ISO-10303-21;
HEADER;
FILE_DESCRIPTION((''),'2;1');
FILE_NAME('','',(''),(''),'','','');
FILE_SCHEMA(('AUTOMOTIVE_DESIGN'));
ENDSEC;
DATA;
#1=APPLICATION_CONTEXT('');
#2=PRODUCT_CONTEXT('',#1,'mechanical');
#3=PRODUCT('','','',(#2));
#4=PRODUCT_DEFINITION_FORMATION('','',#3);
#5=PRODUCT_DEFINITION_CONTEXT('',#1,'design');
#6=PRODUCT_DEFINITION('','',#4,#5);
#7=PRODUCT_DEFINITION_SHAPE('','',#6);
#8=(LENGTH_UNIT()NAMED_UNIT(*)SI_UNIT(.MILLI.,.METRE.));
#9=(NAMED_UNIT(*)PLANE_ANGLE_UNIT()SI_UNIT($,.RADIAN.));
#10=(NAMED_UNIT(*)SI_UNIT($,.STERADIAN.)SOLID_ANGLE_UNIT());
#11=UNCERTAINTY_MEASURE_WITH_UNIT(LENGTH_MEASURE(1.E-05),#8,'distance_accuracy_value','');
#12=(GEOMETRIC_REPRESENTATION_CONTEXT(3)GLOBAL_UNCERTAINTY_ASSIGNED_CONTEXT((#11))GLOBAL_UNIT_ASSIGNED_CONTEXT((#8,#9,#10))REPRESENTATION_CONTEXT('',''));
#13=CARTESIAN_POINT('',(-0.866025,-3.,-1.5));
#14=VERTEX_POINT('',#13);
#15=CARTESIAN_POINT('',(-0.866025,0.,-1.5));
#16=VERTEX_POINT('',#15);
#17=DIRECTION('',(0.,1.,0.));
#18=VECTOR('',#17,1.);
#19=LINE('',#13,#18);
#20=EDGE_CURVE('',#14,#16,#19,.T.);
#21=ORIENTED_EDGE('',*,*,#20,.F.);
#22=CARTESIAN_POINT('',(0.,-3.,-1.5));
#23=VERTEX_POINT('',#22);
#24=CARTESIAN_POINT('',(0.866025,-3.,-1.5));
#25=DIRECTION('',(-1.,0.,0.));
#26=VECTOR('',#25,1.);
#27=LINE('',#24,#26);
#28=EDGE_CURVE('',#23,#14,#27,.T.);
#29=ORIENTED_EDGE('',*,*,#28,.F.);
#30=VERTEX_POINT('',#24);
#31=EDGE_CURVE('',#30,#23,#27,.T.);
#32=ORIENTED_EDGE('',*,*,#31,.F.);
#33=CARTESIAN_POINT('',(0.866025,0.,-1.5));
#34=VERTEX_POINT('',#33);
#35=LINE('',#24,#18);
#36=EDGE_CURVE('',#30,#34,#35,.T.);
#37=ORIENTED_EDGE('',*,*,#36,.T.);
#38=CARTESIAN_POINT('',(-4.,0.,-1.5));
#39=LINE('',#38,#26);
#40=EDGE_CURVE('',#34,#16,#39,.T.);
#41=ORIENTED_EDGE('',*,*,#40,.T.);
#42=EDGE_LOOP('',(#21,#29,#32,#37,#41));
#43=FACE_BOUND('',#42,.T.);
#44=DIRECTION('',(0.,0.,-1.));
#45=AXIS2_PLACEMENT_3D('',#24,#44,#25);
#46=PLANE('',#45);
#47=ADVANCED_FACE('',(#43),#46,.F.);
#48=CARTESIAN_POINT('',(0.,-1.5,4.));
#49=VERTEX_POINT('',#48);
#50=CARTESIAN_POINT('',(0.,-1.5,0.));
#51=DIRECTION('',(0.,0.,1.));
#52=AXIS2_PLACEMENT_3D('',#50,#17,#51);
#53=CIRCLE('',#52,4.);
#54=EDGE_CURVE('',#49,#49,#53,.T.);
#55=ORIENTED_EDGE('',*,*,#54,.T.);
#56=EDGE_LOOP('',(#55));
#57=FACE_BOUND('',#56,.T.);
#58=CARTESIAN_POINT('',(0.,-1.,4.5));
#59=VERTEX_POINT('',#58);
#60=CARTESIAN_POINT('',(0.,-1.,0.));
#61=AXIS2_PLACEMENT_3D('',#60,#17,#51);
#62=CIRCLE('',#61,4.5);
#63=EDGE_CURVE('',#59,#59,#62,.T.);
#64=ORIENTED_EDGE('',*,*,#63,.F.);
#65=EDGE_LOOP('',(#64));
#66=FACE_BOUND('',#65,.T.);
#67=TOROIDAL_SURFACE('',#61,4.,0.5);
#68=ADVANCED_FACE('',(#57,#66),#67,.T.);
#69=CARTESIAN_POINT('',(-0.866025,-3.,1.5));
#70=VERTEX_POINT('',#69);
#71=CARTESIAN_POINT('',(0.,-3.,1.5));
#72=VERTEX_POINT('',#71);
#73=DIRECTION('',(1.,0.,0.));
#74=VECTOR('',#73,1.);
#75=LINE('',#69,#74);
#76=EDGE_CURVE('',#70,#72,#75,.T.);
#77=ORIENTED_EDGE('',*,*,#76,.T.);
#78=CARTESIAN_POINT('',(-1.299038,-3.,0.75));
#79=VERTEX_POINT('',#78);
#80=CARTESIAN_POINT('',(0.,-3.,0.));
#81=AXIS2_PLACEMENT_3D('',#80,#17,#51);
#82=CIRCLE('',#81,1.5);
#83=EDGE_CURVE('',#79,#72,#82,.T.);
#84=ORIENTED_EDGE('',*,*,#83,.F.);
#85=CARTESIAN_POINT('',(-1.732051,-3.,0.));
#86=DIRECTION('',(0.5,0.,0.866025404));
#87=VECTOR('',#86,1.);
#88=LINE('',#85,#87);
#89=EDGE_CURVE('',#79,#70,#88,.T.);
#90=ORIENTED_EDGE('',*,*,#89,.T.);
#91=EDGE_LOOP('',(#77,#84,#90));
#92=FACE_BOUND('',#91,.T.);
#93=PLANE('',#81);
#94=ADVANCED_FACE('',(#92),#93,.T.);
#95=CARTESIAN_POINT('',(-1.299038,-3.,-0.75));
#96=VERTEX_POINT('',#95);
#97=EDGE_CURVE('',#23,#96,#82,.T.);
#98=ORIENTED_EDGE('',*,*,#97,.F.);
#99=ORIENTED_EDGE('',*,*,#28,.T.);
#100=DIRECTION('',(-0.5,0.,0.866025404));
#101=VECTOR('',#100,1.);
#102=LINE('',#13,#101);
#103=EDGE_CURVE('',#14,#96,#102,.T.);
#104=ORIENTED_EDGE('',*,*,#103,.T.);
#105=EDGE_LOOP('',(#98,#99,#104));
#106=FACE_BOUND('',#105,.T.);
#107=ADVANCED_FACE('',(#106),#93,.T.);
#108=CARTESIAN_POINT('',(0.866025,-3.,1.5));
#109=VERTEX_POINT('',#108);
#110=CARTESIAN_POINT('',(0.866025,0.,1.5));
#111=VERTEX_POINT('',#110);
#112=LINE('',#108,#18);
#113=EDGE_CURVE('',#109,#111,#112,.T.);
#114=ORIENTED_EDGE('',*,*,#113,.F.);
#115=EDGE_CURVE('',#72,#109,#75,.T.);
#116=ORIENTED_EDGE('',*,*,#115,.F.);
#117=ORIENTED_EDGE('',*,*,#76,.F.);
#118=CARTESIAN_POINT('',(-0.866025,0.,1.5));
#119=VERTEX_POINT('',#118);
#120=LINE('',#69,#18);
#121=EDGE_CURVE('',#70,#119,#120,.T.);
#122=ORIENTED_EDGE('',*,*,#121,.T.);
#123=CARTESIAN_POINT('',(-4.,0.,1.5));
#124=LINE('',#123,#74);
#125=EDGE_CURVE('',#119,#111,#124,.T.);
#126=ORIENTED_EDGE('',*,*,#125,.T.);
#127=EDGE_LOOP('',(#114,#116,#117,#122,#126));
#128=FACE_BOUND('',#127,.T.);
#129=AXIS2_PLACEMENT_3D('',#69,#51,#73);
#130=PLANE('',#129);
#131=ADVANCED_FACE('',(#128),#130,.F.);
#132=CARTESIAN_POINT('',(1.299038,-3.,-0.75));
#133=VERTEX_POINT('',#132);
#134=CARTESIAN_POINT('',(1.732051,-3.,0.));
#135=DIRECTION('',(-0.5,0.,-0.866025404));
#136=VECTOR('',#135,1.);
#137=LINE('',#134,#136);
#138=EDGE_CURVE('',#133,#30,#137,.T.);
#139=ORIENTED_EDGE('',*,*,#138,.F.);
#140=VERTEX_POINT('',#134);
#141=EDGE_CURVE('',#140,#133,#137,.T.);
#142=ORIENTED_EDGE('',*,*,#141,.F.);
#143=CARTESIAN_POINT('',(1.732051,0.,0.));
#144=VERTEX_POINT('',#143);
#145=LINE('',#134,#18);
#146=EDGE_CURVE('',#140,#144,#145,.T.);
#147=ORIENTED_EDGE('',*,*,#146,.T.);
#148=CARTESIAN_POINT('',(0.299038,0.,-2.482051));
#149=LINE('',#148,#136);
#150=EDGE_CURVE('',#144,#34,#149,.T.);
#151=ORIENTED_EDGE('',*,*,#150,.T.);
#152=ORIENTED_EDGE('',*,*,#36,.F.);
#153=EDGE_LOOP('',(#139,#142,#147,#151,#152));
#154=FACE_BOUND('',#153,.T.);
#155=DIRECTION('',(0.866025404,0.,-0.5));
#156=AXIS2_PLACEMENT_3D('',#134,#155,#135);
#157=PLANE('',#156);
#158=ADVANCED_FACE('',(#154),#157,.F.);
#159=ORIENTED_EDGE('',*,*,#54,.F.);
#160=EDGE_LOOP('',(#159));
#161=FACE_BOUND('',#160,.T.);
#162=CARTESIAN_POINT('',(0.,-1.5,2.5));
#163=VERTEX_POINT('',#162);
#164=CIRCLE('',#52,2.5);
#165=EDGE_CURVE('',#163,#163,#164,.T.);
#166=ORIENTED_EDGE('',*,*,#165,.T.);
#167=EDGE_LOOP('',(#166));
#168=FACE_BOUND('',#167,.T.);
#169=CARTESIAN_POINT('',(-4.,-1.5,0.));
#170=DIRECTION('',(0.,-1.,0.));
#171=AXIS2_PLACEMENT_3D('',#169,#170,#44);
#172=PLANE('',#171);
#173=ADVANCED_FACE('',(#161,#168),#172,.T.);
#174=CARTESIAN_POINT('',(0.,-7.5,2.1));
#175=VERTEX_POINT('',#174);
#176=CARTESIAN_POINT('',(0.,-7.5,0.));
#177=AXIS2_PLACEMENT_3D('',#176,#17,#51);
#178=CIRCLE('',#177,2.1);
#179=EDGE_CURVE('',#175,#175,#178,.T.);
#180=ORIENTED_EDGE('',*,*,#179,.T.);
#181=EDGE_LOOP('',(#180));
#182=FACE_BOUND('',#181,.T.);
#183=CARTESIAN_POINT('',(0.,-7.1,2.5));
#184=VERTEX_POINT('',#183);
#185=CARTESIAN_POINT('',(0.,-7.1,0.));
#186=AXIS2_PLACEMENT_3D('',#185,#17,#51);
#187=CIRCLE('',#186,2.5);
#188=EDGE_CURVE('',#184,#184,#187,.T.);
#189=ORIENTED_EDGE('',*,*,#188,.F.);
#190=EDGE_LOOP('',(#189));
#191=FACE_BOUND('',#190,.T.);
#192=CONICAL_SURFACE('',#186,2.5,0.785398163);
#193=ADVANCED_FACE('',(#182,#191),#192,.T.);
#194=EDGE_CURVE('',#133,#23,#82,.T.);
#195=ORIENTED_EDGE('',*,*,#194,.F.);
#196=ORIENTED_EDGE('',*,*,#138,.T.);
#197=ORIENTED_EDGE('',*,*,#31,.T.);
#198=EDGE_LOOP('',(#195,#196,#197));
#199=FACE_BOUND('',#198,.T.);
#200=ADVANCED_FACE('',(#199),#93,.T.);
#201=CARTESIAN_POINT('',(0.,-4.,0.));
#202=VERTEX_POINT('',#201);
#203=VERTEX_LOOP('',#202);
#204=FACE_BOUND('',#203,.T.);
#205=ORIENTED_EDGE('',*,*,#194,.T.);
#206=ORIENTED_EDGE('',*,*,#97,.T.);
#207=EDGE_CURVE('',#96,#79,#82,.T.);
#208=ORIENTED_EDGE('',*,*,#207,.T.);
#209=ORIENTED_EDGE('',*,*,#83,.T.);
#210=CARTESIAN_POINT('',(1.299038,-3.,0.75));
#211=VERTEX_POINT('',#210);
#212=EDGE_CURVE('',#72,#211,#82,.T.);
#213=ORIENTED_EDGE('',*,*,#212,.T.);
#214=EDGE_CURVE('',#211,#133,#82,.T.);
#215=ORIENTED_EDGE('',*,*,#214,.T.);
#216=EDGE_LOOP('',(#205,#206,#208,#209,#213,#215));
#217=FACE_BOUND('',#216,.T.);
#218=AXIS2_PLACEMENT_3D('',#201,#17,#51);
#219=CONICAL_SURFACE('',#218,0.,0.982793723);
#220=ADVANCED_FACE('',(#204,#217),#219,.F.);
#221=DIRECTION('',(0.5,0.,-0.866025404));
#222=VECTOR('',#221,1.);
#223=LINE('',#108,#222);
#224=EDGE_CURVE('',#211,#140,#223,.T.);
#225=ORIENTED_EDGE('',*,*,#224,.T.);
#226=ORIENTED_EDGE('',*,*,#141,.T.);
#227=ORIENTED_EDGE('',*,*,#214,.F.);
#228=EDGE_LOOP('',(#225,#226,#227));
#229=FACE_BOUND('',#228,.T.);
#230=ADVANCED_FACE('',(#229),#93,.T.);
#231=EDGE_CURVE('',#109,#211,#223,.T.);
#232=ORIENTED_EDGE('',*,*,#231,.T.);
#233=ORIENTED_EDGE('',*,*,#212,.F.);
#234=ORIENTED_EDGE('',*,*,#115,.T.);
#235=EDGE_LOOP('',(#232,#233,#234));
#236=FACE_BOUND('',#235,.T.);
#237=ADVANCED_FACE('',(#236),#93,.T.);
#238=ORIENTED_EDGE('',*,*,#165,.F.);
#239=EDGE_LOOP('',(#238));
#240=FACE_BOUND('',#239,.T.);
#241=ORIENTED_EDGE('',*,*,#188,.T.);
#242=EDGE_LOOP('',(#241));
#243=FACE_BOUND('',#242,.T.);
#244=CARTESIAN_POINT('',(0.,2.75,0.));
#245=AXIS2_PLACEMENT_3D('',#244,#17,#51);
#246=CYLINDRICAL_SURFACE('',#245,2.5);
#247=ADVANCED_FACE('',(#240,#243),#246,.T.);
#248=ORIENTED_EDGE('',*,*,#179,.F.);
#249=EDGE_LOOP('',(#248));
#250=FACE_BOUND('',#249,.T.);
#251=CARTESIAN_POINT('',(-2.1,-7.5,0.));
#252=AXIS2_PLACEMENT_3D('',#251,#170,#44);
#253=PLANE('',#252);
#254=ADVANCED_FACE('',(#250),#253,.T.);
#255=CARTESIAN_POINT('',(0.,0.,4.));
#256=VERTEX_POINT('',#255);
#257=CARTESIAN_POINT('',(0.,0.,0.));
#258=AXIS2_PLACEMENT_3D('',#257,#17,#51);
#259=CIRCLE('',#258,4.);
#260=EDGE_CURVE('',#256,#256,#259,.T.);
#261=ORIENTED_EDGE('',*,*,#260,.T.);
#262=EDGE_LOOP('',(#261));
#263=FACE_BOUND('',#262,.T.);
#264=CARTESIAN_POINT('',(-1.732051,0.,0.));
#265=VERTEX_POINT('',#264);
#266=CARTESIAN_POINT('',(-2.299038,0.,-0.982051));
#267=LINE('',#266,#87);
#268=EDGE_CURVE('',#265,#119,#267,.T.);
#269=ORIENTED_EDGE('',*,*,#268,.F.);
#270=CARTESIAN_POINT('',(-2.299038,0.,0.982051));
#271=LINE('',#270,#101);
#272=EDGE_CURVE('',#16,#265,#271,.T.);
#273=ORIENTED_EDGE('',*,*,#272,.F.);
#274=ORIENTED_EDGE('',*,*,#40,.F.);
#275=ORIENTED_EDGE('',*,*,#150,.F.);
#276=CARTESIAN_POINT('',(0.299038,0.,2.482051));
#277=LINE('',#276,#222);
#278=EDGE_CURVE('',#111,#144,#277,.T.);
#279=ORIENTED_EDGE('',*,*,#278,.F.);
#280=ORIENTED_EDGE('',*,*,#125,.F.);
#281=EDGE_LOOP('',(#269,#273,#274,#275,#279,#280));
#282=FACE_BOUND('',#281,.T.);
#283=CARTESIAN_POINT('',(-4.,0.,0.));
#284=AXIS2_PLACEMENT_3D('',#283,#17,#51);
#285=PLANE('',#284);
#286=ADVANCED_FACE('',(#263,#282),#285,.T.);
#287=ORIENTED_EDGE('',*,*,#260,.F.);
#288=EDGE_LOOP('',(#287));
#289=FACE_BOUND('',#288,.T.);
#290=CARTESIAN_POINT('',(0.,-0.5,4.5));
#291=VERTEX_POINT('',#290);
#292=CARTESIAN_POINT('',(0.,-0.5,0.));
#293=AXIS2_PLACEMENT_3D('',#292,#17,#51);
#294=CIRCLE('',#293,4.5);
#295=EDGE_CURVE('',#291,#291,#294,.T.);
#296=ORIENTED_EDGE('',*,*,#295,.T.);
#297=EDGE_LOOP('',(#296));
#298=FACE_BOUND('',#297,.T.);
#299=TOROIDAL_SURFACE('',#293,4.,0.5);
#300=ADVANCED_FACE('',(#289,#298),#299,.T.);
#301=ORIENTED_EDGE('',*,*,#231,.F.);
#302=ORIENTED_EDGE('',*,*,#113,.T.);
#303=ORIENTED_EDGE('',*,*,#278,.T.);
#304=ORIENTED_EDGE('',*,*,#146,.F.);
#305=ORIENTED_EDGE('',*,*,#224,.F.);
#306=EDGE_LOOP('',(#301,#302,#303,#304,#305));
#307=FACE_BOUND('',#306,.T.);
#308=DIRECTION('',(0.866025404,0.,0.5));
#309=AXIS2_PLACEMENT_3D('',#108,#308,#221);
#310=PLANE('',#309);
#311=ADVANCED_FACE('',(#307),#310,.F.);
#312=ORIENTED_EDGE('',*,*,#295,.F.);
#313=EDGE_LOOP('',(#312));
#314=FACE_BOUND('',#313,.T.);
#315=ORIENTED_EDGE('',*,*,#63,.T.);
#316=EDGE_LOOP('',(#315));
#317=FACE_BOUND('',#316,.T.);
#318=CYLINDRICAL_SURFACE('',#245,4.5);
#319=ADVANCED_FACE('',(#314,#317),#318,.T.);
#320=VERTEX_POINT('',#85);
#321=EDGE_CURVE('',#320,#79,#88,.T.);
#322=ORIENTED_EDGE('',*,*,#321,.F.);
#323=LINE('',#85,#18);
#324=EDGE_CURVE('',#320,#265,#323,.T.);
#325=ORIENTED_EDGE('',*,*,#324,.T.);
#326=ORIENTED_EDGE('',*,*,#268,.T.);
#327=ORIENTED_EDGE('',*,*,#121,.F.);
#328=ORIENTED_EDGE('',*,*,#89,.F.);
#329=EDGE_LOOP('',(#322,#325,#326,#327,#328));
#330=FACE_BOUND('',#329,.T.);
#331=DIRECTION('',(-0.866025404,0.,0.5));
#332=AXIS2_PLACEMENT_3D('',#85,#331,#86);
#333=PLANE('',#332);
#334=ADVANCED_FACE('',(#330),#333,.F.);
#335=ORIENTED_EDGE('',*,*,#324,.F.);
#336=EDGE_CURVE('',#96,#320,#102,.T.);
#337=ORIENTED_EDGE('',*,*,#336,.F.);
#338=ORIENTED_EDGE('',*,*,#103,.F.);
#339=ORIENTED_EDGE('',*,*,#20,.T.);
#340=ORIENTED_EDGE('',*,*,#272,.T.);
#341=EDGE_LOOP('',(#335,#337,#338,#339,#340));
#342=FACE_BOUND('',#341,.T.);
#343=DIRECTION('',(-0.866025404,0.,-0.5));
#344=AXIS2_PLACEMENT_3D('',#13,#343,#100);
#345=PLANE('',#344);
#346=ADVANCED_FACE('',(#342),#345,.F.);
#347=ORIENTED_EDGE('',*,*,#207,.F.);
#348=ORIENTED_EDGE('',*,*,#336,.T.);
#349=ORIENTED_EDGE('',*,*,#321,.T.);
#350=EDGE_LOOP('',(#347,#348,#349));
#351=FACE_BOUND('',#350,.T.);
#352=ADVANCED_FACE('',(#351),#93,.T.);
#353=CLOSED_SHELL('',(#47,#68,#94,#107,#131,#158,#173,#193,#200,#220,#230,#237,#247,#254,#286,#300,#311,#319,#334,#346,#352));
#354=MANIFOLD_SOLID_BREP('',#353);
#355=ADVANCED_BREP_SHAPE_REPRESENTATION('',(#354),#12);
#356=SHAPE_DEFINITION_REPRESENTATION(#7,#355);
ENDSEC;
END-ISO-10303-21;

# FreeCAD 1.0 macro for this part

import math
import FreeCAD as App
import Part
import Sketcher
Q = App.Units.Quantity


def add_polygon(sketch, points):
    """Adds a closed chain of lines whose ends are joined by coincident constraints."""
    first, n = sketch.GeometryCount, len(points)
    for a, b in zip(points, points[1:] + points[:1]):
        sketch.addGeometry(Part.LineSegment(App.Vector(*a, 0), App.Vector(*b, 0)), False)
    for i in range(n):
        sketch.addConstraint(Sketcher.Constraint("Coincident", first + i, 2, first + (i + 1) % n, 1))

doc = App.newDocument("Part")
body = doc.addObject("PartDesign::Body", "Body")

# Sketch on XY plane
sketch1 = body.newObject("Sketcher::SketchObject", "Sketch")
sketch1.AttachmentSupport = (doc.getObject("XY_Plane"), [""])
sketch1.MapMode = "FlatFace"
sketch1.addGeometry([
    Part.LineSegment(App.Vector(-4.5, -0.5, 0), App.Vector(-4.5, -1, 0)),  # 0
    Part.ArcOfCircle(Part.Circle(App.Vector(-4, -1, 0), App.Vector(0, 0, 1), 0.5), math.radians(180), math.radians(270)),  # 1
    Part.LineSegment(App.Vector(-4, -1.5, 0), App.Vector(-2.5, -1.5, 0)),  # 2
    Part.LineSegment(App.Vector(-2.5, -1.5, 0), App.Vector(-2.5, -7.1, 0)),  # 3
    Part.LineSegment(App.Vector(-2.5, -7.1, 0), App.Vector(-2.1, -7.5, 0)),  # 4
    Part.LineSegment(App.Vector(-2.1, -7.5, 0), App.Vector(0, -7.5, 0)),  # 5
    Part.LineSegment(App.Vector(0, -7.5, 0), App.Vector(0, -4, 0)),  # 6
    Part.LineSegment(App.Vector(0, -4, 0), App.Vector(-1.5, -3, 0)),  # 7
    Part.LineSegment(App.Vector(-1.5, -3, 0), App.Vector(-1.5, 0, 0)),  # 8
    Part.LineSegment(App.Vector(-1.5, 0, 0), App.Vector(-4, 0, 0)),  # 9
    Part.ArcOfCircle(Part.Circle(App.Vector(-4, -0.5, 0), App.Vector(0, 0, 1), 0.5), math.radians(90), math.radians(180)),  # 10
], False)
sketch1.addConstraint([
    Sketcher.Constraint("Tangent", 0, 2, 1, 1),
    Sketcher.Constraint("Tangent", 1, 2, 2, 1),
    Sketcher.Constraint("Coincident", 2, 2, 3, 1),
    Sketcher.Constraint("Coincident", 3, 2, 4, 1),
    Sketcher.Constraint("Coincident", 4, 2, 5, 1),
    Sketcher.Constraint("Coincident", 5, 2, 6, 1),
    Sketcher.Constraint("Coincident", 6, 2, 7, 1),
    Sketcher.Constraint("Coincident", 7, 2, 8, 1),
    Sketcher.Constraint("Coincident", 8, 2, 9, 1),
    Sketcher.Constraint("Tangent", 9, 2, 10, 1),
    Sketcher.Constraint("Tangent", 10, 2, 0, 1),
    Sketcher.Constraint("Vertical", 0),
    Sketcher.Constraint("Horizontal", 2),
    Sketcher.Constraint("Vertical", 3),
    Sketcher.Constraint("Horizontal", 5),
    Sketcher.Constraint("Vertical", 6),
    Sketcher.Constraint("Vertical", 8),
    Sketcher.Constraint("Horizontal", 9),
    Sketcher.Constraint("Equal", 1, 10),
    Sketcher.Constraint("PointOnObject", 5, 2, -2),
    Sketcher.Constraint("PointOnObject", 8, 2, -1),
    Sketcher.Constraint("Radius", 1, Q("0.5 mm")),
    Sketcher.Constraint("DistanceY", 8, 1, 8, 2, Q("3 mm")),
    Sketcher.Constraint("Angle", 4, Q("-45 deg")),
    Sketcher.Constraint("DistanceX", 2, 1, 2, 2, Q("1.5 mm")),
    Sketcher.Constraint("DistanceX", 5, 1, 5, 2, Q("2.1 mm")),
    Sketcher.Constraint("DistanceX", 9, 2, 9, 1, Q("2.5 mm")),
    Sketcher.Constraint("DistanceY", 0, 2, 0, 1, Q("0.5 mm")),
    Sketcher.Constraint("DistanceY", 3, 2, 3, 1, Q("5.6 mm")),
    Sketcher.Constraint("DistanceY", 6, 1, 6, 2, Q("3.5 mm")),
    Sketcher.Constraint("DistanceX", 1, 3, -1, 1, Q("4 mm")),
])
revolution = body.newObject("PartDesign::Revolution", "Revolution")
revolution.Profile = sketch1
revolution.ReferenceAxis = (sketch1, ["V_Axis"])
revolution.Angle = 360

# Sketch on XZ plane
sketch2 = body.newObject("Sketcher::SketchObject", "Sketch001")
sketch2.AttachmentSupport = (doc.getObject("XZ_Plane"), [""])
sketch2.MapMode = "FlatFace"
add_polygon(sketch2, [(-0.866025, 1.5), (0.866025, 1.5), (1.732051, 0), (0.866025, -1.5), (-0.866025, -1.5), (-1.732051, 0)])  # lines 0-5
sketch2.addConstraint([
    Sketcher.Constraint("Horizontal", 0),
    Sketcher.Constraint("Horizontal", 3),
    Sketcher.Constraint("Symmetric", 0, 2, 3, 2, -1, 1),
    Sketcher.Constraint("Symmetric", 1, 2, 4, 2, -1, 1),
    Sketcher.Constraint("PointOnObject", 1, 2, -1),
    Sketcher.Constraint("Parallel", 2, 5),
    Sketcher.Constraint("Vertical", 0, 2, 2, 2),
    Sketcher.Constraint("Angle", 1, Q("-60 deg")),
    Sketcher.Constraint("DistanceY", 2, 2, 0, 2, Q("3 mm")),
    Sketcher.Constraint("DistanceX", 0, 1, 0, 2, Q("1.732051 mm")),
])
pocket1 = body.newObject("PartDesign::Pocket", "Pocket")
pocket1.Profile = sketch2
pocket1.Length = 3
pocket1.Reversed = True

doc.recompute()
